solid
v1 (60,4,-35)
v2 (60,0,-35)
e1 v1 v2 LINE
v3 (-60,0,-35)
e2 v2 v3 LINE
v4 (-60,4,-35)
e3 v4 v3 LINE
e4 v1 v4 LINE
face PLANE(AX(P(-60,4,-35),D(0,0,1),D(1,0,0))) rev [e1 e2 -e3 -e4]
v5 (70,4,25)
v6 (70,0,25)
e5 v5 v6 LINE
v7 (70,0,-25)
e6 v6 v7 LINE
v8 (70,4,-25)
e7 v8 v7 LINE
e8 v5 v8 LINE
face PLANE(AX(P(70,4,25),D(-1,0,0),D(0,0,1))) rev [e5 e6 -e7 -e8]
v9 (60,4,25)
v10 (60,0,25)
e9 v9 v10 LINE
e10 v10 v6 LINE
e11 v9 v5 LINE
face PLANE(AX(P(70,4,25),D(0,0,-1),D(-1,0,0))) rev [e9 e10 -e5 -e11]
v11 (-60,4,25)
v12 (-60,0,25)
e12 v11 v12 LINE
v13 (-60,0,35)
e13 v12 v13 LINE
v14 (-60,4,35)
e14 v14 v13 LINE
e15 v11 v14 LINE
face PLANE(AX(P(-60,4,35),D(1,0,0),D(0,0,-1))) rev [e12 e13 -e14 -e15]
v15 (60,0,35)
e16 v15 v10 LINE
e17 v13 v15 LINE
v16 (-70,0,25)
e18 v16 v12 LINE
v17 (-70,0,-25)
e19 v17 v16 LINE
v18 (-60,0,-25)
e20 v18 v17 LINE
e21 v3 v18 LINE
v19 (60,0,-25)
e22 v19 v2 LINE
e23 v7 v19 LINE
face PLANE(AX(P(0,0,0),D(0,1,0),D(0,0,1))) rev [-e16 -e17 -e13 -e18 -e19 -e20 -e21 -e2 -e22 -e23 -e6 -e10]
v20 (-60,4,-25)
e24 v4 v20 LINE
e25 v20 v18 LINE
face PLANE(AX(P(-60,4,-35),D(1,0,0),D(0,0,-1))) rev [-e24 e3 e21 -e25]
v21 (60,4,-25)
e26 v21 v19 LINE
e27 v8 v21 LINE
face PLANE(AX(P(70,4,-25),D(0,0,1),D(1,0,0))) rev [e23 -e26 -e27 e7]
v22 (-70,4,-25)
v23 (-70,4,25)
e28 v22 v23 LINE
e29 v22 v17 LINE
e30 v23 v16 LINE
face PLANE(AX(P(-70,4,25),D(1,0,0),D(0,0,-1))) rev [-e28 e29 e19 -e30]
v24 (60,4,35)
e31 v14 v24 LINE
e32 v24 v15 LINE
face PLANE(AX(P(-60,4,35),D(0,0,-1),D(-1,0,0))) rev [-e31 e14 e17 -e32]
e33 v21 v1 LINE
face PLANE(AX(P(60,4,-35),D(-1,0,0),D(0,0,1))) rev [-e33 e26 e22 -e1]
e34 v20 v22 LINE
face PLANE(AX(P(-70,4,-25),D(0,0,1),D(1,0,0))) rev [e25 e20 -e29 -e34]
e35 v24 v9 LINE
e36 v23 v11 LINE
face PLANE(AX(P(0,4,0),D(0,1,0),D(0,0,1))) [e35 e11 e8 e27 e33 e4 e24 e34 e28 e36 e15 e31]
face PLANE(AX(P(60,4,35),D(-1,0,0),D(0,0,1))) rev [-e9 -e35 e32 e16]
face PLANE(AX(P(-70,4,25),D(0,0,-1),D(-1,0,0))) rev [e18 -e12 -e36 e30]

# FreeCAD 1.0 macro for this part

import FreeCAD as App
import Part
import Sketcher
Q = App.Units.Quantity


def add_polygon(sketch, points):
    """Adds a closed chain of lines whose ends are joined by coincident constraints."""
    first, n = sketch.GeometryCount, len(points)
    for a, b in zip(points, points[1:] + points[:1]):
        sketch.addGeometry(Part.LineSegment(App.Vector(*a, 0), App.Vector(*b, 0)), False)
    for i in range(n):
        sketch.addConstraint(Sketcher.Constraint("Coincident", first + i, 2, first + (i + 1) % n, 1))

doc = App.newDocument("Part")
body = doc.addObject("PartDesign::Body", "Body")

sketch1 = body.newObject("Sketcher::SketchObject", "Sketch")
sketch1.AttachmentSupport = (doc.getObject("XZ_Plane"), [""])
sketch1.MapMode = "FlatFace"
add_polygon(sketch1, [(-60, 35), (60, 35), (60, 25), (70, 25), (70, -25), (60, -25), (60, -35), (-60, -35), (-60, -25), (-70, -25), (-70, 25), (-60, 25)])
sketch1.addConstraint([
    Sketcher.Constraint("Horizontal", 0),
    Sketcher.Constraint("Vertical", 1),
    Sketcher.Constraint("Horizontal", 2),
    Sketcher.Constraint("Vertical", 3),
    Sketcher.Constraint("Horizontal", 4),
    Sketcher.Constraint("Vertical", 5),
    Sketcher.Constraint("Horizontal", 6),
    Sketcher.Constraint("Vertical", 7),
    Sketcher.Constraint("Horizontal", 8),
    Sketcher.Constraint("Vertical", 9),
    Sketcher.Constraint("Horizontal", 10),
    Sketcher.Constraint("Vertical", 11),
    Sketcher.Constraint("Symmetric", 0, 2, 6, 2, -1, 1),
    Sketcher.Constraint("Symmetric", 2, 2, 8, 2, -1, 1),
    Sketcher.Constraint("Symmetric", 4, 2, 10, 2, -1, 1),
    Sketcher.Constraint("Symmetric", 4, 2, 7, 2, -2),
    Sketcher.Constraint("Equal", 10, 1),
    Sketcher.Constraint("DistanceX", 0, 1, 0, 2, Q("120 mm")),
    Sketcher.Constraint("DistanceX", 2, 1, 2, 2, Q("10 mm")),
    Sketcher.Constraint("DistanceY", 3, 2, 3, 1, Q("50 mm")),
])
pad1 = body.newObject("PartDesign::Pad", "Pad")
pad1.Profile = sketch1
pad1.Length = 4
pad1.Reversed = True

doc.recompute()
